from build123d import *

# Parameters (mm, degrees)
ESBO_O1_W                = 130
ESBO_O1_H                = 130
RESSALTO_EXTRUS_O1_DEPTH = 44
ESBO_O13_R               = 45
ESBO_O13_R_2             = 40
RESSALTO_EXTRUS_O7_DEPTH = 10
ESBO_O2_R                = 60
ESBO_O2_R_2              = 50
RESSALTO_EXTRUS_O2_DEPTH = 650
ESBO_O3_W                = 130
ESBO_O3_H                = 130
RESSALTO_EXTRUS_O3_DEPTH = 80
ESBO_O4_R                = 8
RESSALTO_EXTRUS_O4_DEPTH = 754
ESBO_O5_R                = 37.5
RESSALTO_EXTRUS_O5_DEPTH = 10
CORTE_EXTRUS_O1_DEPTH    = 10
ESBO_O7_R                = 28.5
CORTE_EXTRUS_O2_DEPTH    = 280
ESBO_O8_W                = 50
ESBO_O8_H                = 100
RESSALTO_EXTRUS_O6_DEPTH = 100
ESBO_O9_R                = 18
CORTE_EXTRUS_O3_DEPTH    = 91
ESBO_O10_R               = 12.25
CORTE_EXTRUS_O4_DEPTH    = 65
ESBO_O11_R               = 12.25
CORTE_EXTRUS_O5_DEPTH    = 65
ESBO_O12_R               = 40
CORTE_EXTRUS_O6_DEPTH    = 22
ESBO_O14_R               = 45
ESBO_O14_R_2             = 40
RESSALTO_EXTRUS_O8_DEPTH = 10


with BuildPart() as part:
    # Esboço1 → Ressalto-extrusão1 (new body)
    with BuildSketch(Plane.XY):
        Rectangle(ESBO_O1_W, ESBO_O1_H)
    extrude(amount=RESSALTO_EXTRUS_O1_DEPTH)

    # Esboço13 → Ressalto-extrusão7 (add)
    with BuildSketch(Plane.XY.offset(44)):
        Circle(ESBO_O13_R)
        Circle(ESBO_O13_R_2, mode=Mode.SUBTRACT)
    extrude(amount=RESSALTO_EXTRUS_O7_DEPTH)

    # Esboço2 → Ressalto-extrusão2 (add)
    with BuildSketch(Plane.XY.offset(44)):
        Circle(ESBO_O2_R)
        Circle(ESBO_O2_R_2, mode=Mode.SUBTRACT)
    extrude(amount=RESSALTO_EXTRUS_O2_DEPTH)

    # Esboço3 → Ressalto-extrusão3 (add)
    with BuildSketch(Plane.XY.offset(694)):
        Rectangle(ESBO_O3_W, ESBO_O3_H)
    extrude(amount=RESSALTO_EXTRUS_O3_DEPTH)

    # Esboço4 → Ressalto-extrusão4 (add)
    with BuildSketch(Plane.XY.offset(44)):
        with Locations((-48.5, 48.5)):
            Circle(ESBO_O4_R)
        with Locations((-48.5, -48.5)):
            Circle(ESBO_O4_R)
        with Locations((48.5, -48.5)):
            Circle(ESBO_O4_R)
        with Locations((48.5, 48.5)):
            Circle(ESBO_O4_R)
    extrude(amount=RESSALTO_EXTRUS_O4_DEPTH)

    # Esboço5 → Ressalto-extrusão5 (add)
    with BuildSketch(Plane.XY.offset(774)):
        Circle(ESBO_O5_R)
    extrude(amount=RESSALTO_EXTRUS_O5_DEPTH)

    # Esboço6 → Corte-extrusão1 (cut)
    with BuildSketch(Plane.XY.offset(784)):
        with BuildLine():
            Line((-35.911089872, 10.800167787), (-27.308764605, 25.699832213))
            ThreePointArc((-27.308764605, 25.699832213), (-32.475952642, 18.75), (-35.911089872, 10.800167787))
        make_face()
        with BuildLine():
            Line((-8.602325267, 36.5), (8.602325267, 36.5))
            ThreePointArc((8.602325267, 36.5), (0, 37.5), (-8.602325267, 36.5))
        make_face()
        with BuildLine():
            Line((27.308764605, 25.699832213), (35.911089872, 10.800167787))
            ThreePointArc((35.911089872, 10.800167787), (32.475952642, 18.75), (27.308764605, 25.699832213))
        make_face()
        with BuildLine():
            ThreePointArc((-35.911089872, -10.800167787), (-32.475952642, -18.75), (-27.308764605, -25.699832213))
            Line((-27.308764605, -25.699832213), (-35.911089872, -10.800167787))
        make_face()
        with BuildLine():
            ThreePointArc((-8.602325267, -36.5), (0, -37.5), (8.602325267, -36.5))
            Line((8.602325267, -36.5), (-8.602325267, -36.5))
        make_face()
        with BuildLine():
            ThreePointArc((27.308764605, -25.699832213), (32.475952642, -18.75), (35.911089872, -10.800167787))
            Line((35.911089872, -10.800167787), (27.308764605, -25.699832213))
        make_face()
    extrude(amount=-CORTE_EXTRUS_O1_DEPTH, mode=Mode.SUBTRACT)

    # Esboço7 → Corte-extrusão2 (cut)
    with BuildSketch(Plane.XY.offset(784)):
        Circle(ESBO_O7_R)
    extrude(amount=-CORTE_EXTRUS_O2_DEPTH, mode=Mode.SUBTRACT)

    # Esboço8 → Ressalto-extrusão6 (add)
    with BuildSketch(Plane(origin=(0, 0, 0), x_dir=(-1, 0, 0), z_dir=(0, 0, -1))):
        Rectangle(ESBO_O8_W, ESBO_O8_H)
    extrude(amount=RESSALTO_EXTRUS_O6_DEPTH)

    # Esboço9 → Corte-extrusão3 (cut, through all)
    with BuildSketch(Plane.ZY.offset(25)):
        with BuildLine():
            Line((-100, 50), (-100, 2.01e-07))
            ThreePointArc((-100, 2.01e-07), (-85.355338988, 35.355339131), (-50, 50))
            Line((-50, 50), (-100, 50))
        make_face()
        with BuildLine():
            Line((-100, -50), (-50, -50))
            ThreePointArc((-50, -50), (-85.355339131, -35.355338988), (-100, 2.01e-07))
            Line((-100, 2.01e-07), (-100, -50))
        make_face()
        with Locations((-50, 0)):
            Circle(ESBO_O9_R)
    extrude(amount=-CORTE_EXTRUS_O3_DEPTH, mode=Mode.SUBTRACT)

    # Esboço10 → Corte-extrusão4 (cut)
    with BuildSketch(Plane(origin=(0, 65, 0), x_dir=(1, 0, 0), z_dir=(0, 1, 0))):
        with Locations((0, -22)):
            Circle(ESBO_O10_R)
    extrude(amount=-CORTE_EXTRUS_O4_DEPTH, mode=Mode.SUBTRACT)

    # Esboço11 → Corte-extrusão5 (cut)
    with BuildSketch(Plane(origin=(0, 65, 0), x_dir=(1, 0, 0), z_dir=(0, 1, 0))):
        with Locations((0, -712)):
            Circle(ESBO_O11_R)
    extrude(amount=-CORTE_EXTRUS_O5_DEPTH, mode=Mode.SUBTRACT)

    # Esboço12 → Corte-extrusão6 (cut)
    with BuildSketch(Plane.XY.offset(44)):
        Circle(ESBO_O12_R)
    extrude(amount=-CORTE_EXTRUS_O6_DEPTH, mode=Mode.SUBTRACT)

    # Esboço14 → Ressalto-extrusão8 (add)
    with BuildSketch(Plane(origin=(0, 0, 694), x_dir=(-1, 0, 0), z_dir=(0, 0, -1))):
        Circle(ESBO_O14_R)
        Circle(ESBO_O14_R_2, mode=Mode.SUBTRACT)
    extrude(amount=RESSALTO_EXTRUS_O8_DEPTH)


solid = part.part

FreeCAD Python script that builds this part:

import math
import FreeCAD as App
import Part
import Sketcher
Q = App.Units.Quantity


def add_polygon(sketch, points):
    """Adds a closed chain of lines whose ends are joined by coincident constraints."""
    first, n = sketch.GeometryCount, len(points)
    for a, b in zip(points, points[1:] + points[:1]):
        sketch.addGeometry(Part.LineSegment(App.Vector(*a, 0), App.Vector(*b, 0)), False)
    for i in range(n):
        sketch.addConstraint(Sketcher.Constraint("Coincident", first + i, 2, first + (i + 1) % n, 1))

doc = App.newDocument("Part")
body = doc.addObject("PartDesign::Body", "Body")

sketch1 = body.newObject("Sketcher::SketchObject", "Sketch")
sketch1.AttachmentSupport = (doc.getObject("XY_Plane"), [""])
sketch1.MapMode = "FlatFace"
add_polygon(sketch1, [(-65, 65), (-65, -65), (65, -65), (65, 65)])
sketch1.addConstraint(Sketcher.Constraint("Vertical", 0))
sketch1.addConstraint(Sketcher.Constraint("Horizontal", 1))
sketch1.addConstraint(Sketcher.Constraint("Vertical", 2))
sketch1.addConstraint(Sketcher.Constraint("Horizontal", 3))
sketch1.addConstraint(Sketcher.Constraint("Symmetric", 0, 2, 2, 2, -1, 1))
sketch1.addConstraint(Sketcher.Constraint("Equal", 3, 0))
sketch1.addConstraint(Sketcher.Constraint("DistanceX", 1, 1, 1, 2, Q("130 mm")))
pad1 = body.newObject("PartDesign::Pad", "Pad")
pad1.Profile = sketch1
pad1.Length = 44

sketch2 = body.newObject("Sketcher::SketchObject", "Sketch001")
sketch2.AttachmentSupport = (doc.getObject("XY_Plane"), [""])
sketch2.MapMode = "FlatFace"
sketch2.AttachmentOffset = App.Placement(App.Vector(0, 0, 44), App.Rotation())
sketch2.addGeometry(Part.Circle(App.Vector(0, 0, 0), App.Vector(0, 0, 1), 45), False)
sketch2.addGeometry(Part.Circle(App.Vector(0, 0, 0), App.Vector(0, 0, 1), 40), False)
sketch2.addConstraint(Sketcher.Constraint("Coincident", 0, 3, -1, 1))
sketch2.addConstraint(Sketcher.Constraint("Coincident", 1, 3, -1, 1))
sketch2.addConstraint(Sketcher.Constraint("Diameter", 0, Q("90 mm")))
sketch2.addConstraint(Sketcher.Constraint("Diameter", 1, Q("80 mm")))
pad2 = body.newObject("PartDesign::Pad", "Pad001")
pad2.Profile = sketch2
pad2.Length = 10

sketch3 = body.newObject("Sketcher::SketchObject", "Sketch002")
sketch3.AttachmentSupport = (doc.getObject("XY_Plane"), [""])
sketch3.MapMode = "FlatFace"
sketch3.AttachmentOffset = App.Placement(App.Vector(0, 0, 44), App.Rotation())
sketch3.addGeometry(Part.Circle(App.Vector(0, 0, 0), App.Vector(0, 0, 1), 60), False)
sketch3.addGeometry(Part.Circle(App.Vector(0, 0, 0), App.Vector(0, 0, 1), 50), False)
sketch3.addConstraint(Sketcher.Constraint("Coincident", 0, 3, -1, 1))
sketch3.addConstraint(Sketcher.Constraint("Coincident", 1, 3, -1, 1))
sketch3.addConstraint(Sketcher.Constraint("Diameter", 0, Q("120 mm")))
sketch3.addConstraint(Sketcher.Constraint("Diameter", 1, Q("100 mm")))
pad3 = body.newObject("PartDesign::Pad", "Pad002")
pad3.Profile = sketch3
pad3.Length = 650

sketch4 = body.newObject("Sketcher::SketchObject", "Sketch003")
sketch4.AttachmentSupport = (doc.getObject("XY_Plane"), [""])
sketch4.MapMode = "FlatFace"
sketch4.AttachmentOffset = App.Placement(App.Vector(0, 0, 694), App.Rotation())
add_polygon(sketch4, [(-65, 65), (-65, -65), (65, -65), (65, 65)])
sketch4.addConstraint(Sketcher.Constraint("Vertical", 0))
sketch4.addConstraint(Sketcher.Constraint("Horizontal", 1))
sketch4.addConstraint(Sketcher.Constraint("Vertical", 2))
sketch4.addConstraint(Sketcher.Constraint("Horizontal", 3))
sketch4.addConstraint(Sketcher.Constraint("Symmetric", 0, 2, 2, 2, -1, 1))
sketch4.addConstraint(Sketcher.Constraint("Equal", 3, 0))
sketch4.addConstraint(Sketcher.Constraint("DistanceX", 1, 1, 1, 2, Q("130 mm")))
pad4 = body.newObject("PartDesign::Pad", "Pad003")
pad4.Profile = sketch4
pad4.Length = 80

sketch5 = body.newObject("Sketcher::SketchObject", "Sketch004")
sketch5.AttachmentSupport = (doc.getObject("XY_Plane"), [""])
sketch5.MapMode = "FlatFace"
sketch5.AttachmentOffset = App.Placement(App.Vector(0, 0, 44), App.Rotation())
sketch5.addGeometry(Part.Circle(App.Vector(-48.5, 48.5, 0), App.Vector(0, 0, 1), 8), False)
sketch5.addGeometry(Part.Circle(App.Vector(-48.5, -48.5, 0), App.Vector(0, 0, 1), 8), False)
sketch5.addGeometry(Part.Circle(App.Vector(48.5, -48.5, 0), App.Vector(0, 0, 1), 8), False)
sketch5.addGeometry(Part.Circle(App.Vector(48.5, 48.5, 0), App.Vector(0, 0, 1), 8), False)
sketch5.addConstraint(Sketcher.Constraint("Equal", 0, 1))
sketch5.addConstraint(Sketcher.Constraint("Equal", 1, 2))
sketch5.addConstraint(Sketcher.Constraint("Equal", 2, 3))
sketch5.addConstraint(Sketcher.Constraint("Symmetric", 0, 3, 2, 3, -1, 1))
sketch5.addConstraint(Sketcher.Constraint("Symmetric", 1, 3, 3, 3, -1, 1))
sketch5.addConstraint(Sketcher.Constraint("Symmetric", 1, 3, 2, 3, -2))
sketch5.addConstraint(Sketcher.Constraint("Diameter", 0, Q("16 mm")))
sketch5.addConstraint(Sketcher.Constraint("DistanceY", 1, 3, 0, 3, Q("97 mm")))
sketch5.addConstraint(Sketcher.Constraint("DistanceX", 1, 3, 2, 3, Q("97 mm")))
pad5 = body.newObject("PartDesign::Pad", "Pad004")
pad5.Profile = sketch5
pad5.Length = 754

sketch6 = body.newObject("Sketcher::SketchObject", "Sketch005")
sketch6.AttachmentSupport = (doc.getObject("XY_Plane"), [""])
sketch6.MapMode = "FlatFace"
sketch6.AttachmentOffset = App.Placement(App.Vector(0, 0, 774), App.Rotation())
sketch6.addGeometry(Part.Circle(App.Vector(0, 0, 0), App.Vector(0, 0, 1), 37.5), False)
sketch6.addConstraint(Sketcher.Constraint("Coincident", 0, 3, -1, 1))
sketch6.addConstraint(Sketcher.Constraint("Diameter", 0, Q("75 mm")))
pad6 = body.newObject("PartDesign::Pad", "Pad005")
pad6.Profile = sketch6
pad6.Length = 10

sketch7 = body.newObject("Sketcher::SketchObject", "Sketch006")
sketch7.AttachmentSupport = (doc.getObject("XY_Plane"), [""])
sketch7.MapMode = "FlatFace"
sketch7.AttachmentOffset = App.Placement(App.Vector(0, 0, 784), App.Rotation())
sketch7.addGeometry(Part.LineSegment(App.Vector(-35.91109, 10.800168, 0), App.Vector(-27.308765, 25.699832, 0)), False)
sketch7.addGeometry(Part.ArcOfCircle(Part.Circle(App.Vector(0, 0, 0), App.Vector(0, 0, 1), 37.5), math.radians(136.738524), math.radians(163.261476)), False)
sketch7.addGeometry(Part.LineSegment(App.Vector(-8.602325, 36.5, 0), App.Vector(8.602325, 36.5, 0)), False)
sketch7.addGeometry(Part.ArcOfCircle(Part.Circle(App.Vector(0, 0, 0), App.Vector(0, 0, 1), 37.5), math.radians(76.738524), math.radians(103.261476)), False)
sketch7.addGeometry(Part.LineSegment(App.Vector(27.308765, 25.699832, 0), App.Vector(35.91109, 10.800168, 0)), False)
sketch7.addGeometry(Part.ArcOfCircle(Part.Circle(App.Vector(0, 0, 0), App.Vector(0, 0, 1), 37.5), math.radians(16.738524), math.radians(43.261476)), False)
sketch7.addGeometry(Part.ArcOfCircle(Part.Circle(App.Vector(0, 0, 0), App.Vector(0, 0, 1), 37.5), math.radians(-163.261476), math.radians(-136.738524)), False)
sketch7.addGeometry(Part.LineSegment(App.Vector(-27.308765, -25.699832, 0), App.Vector(-35.91109, -10.800168, 0)), False)
sketch7.addGeometry(Part.ArcOfCircle(Part.Circle(App.Vector(0, 0, 0), App.Vector(0, 0, 1), 37.5), math.radians(-103.261476), math.radians(-76.738524)), False)
sketch7.addGeometry(Part.LineSegment(App.Vector(8.602325, -36.5, 0), App.Vector(-8.602325, -36.5, 0)), False)
sketch7.addGeometry(Part.ArcOfCircle(Part.Circle(App.Vector(0, 0, 0), App.Vector(0, 0, 1), 37.5), math.radians(-43.261476), math.radians(-16.738524)), False)
sketch7.addGeometry(Part.LineSegment(App.Vector(35.91109, -10.800168, 0), App.Vector(27.308765, -25.699832, 0)), False)
sketch7.addConstraint(Sketcher.Constraint("Coincident", 0, 1, 1, 2))
sketch7.addConstraint(Sketcher.Constraint("Coincident", 1, 1, 0, 2))
sketch7.addConstraint(Sketcher.Constraint("Coincident", 2, 1, 3, 2))
sketch7.addConstraint(Sketcher.Constraint("Coincident", 3, 1, 2, 2))
sketch7.addConstraint(Sketcher.Constraint("Coincident", 4, 1, 5, 2))
sketch7.addConstraint(Sketcher.Constraint("Coincident", 5, 1, 4, 2))
sketch7.addConstraint(Sketcher.Constraint("Coincident", 6, 1, 7, 2))
sketch7.addConstraint(Sketcher.Constraint("Coincident", 7, 1, 6, 2))
sketch7.addConstraint(Sketcher.Constraint("Coincident", 8, 1, 9, 2))
sketch7.addConstraint(Sketcher.Constraint("Coincident", 9, 1, 8, 2))
sketch7.addConstraint(Sketcher.Constraint("Coincident", 10, 1, 11, 2))
sketch7.addConstraint(Sketcher.Constraint("Coincident", 11, 1, 10, 2))
sketch7.addConstraint(Sketcher.Constraint("Horizontal", 2))
sketch7.addConstraint(Sketcher.Constraint("Horizontal", 9))
sketch7.addConstraint(Sketcher.Constraint("Coincident", 1, 3, -1, 1))
sketch7.addConstraint(Sketcher.Constraint("Coincident", 3, 3, -1, 1))
sketch7.addConstraint(Sketcher.Constraint("Coincident", 5, 3, -1, 1))
sketch7.addConstraint(Sketcher.Constraint("Coincident", 6, 3, -1, 1))
sketch7.addConstraint(Sketcher.Constraint("Coincident", 8, 3, -1, 1))
sketch7.addConstraint(Sketcher.Constraint("Coincident", 10, 3, -1, 1))
sketch7.addConstraint(Sketcher.Constraint("Equal", 1, 3))
sketch7.addConstraint(Sketcher.Constraint("Equal", 3, 5))
sketch7.addConstraint(Sketcher.Constraint("Equal", 5, 6))
sketch7.addConstraint(Sketcher.Constraint("Equal", 6, 8))
sketch7.addConstraint(Sketcher.Constraint("Equal", 8, 10))
sketch7.addConstraint(Sketcher.Constraint("Parallel", 4, 7))
sketch7.addConstraint(Sketcher.Constraint("Parallel", 0, 11))
sketch7.addConstraint(Sketcher.Constraint("Horizontal", 1, 1, 4, 1))
sketch7.addConstraint(Sketcher.Constraint("Horizontal", 0, 1, 5, 1))
sketch7.addConstraint(Sketcher.Constraint("Horizontal", 7, 1, 10, 1))
sketch7.addConstraint(Sketcher.Constraint("Vertical", 0, 1, 6, 1))
sketch7.addConstraint(Sketcher.Constraint("Vertical", 2, 1, 8, 1))
sketch7.addConstraint(Sketcher.Constraint("Radius", 1, Q("37.5 mm")))
sketch7.addConstraint(Sketcher.Constraint("Angle", 0, Q("60 deg")))
sketch7.addConstraint(Sketcher.Constraint("DistanceY", -1, 1, 2, 1, Q("36.5 mm")))
sketch7.addConstraint(Sketcher.Constraint("DistanceY", 7, 1, 0, 1, Q("36.5 mm")))
pocket1 = body.newObject("PartDesign::Pocket", "Pocket")
pocket1.Profile = sketch7
pocket1.Length = 10

sketch8 = body.newObject("Sketcher::SketchObject", "Sketch007")
sketch8.AttachmentSupport = (doc.getObject("XY_Plane"), [""])
sketch8.MapMode = "FlatFace"
sketch8.AttachmentOffset = App.Placement(App.Vector(0, 0, 784), App.Rotation())
sketch8.addGeometry(Part.Circle(App.Vector(0, 0, 0), App.Vector(0, 0, 1), 28.5), False)
sketch8.addConstraint(Sketcher.Constraint("Coincident", 0, 3, -1, 1))
sketch8.addConstraint(Sketcher.Constraint("Diameter", 0, Q("57 mm")))
pocket2 = body.newObject("PartDesign::Pocket", "Pocket001")
pocket2.Profile = sketch8
pocket2.Length = 280

sketch9 = body.newObject("Sketcher::SketchObject", "Sketch008")
sketch9.AttachmentSupport = (doc.getObject("XY_Plane"), [""])
sketch9.MapMode = "FlatFace"
add_polygon(sketch9, [(25, 50), (25, -50), (-25, -50), (-25, 50)])
sketch9.addConstraint(Sketcher.Constraint("Vertical", 0))
sketch9.addConstraint(Sketcher.Constraint("Horizontal", 1))
sketch9.addConstraint(Sketcher.Constraint("Vertical", 2))
sketch9.addConstraint(Sketcher.Constraint("Horizontal", 3))
sketch9.addConstraint(Sketcher.Constraint("Symmetric", 0, 2, 2, 2, -1, 1))
sketch9.addConstraint(Sketcher.Constraint("DistanceX", 1, 2, 1, 1, Q("50 mm")))
sketch9.addConstraint(Sketcher.Constraint("DistanceY", 0, 2, 0, 1, Q("100 mm")))
pad7 = body.newObject("PartDesign::Pad", "Pad006")
pad7.Profile = sketch9
pad7.Length = 100
pad7.Reversed = True

sketch10 = body.newObject("Sketcher::SketchObject", "Sketch009")
sketch10.AttachmentSupport = (doc.getObject("YZ_Plane"), [""])
sketch10.MapMode = "FlatFace"
sketch10.AttachmentOffset = App.Placement(App.Vector(0, 0, -25), App.Rotation())
sketch10.addGeometry(Part.LineSegment(App.Vector(50, -100, 0), App.Vector(0, -100, 0)), False)
sketch10.addGeometry(Part.ArcOfCircle(Part.Circle(App.Vector(0, -50, 0), App.Vector(0, 0, 1), 50), math.radians(-90), math.radians(0)), False)
sketch10.addGeometry(Part.LineSegment(App.Vector(50, -50, 0), App.Vector(50, -100, 0)), False)
sketch10.addGeometry(Part.LineSegment(App.Vector(-50, -100, 0), App.Vector(-50, -50, 0)), False)
sketch10.addGeometry(Part.ArcOfCircle(Part.Circle(App.Vector(0, -50, 0), App.Vector(0, 0, 1), 50), math.radians(180), math.radians(270)), False)
sketch10.addGeometry(Part.LineSegment(App.Vector(0, -100, 0), App.Vector(-50, -100, 0)), False)
sketch10.addGeometry(Part.Circle(App.Vector(0, -50, 0), App.Vector(0, 0, 1), 18), False)
sketch10.addConstraint(Sketcher.Constraint("Tangent", 0, 2, 1, 1))
sketch10.addConstraint(Sketcher.Constraint("Tangent", 1, 2, 2, 1))
sketch10.addConstraint(Sketcher.Constraint("Coincident", 2, 2, 0, 1))
sketch10.addConstraint(Sketcher.Constraint("Tangent", 3, 2, 4, 1))
sketch10.addConstraint(Sketcher.Constraint("Tangent", 4, 2, 5, 1))
sketch10.addConstraint(Sketcher.Constraint("Coincident", 5, 2, 3, 1))
sketch10.addConstraint(Sketcher.Constraint("Horizontal", 0))
sketch10.addConstraint(Sketcher.Constraint("Vertical", 2))
sketch10.addConstraint(Sketcher.Constraint("Vertical", 3))
sketch10.addConstraint(Sketcher.Constraint("Horizontal", 5))
sketch10.addConstraint(Sketcher.Constraint("Coincident", 4, 3, 1, 3))
sketch10.addConstraint(Sketcher.Constraint("Coincident", 6, 3, 1, 3))
sketch10.addConstraint(Sketcher.Constraint("Equal", 1, 4))
sketch10.addConstraint(Sketcher.Constraint("PointOnObject", 1, 3, -2))
sketch10.addConstraint(Sketcher.Constraint("Diameter", 6, Q("36 mm")))
sketch10.addConstraint(Sketcher.Constraint("Radius", 1, Q("50 mm")))
sketch10.addConstraint(Sketcher.Constraint("DistanceY", 1, 3, -1, 1, Q("50 mm")))
pocket3 = body.newObject("PartDesign::Pocket", "Pocket002")
pocket3.Profile = sketch10
pocket3.Type = "ThroughAll"
pocket3.Reversed = True

sketch11 = body.newObject("Sketcher::SketchObject", "Sketch010")
sketch11.AttachmentSupport = (doc.getObject("XZ_Plane"), [""])
sketch11.MapMode = "FlatFace"
sketch11.AttachmentOffset = App.Placement(App.Vector(0, 0, -65), App.Rotation())
sketch11.addGeometry(Part.Circle(App.Vector(0, 22, 0), App.Vector(0, 0, 1), 12.25), False)
sketch11.addConstraint(Sketcher.Constraint("PointOnObject", 0, 3, -2))
sketch11.addConstraint(Sketcher.Constraint("Diameter", 0, Q("24.5 mm")))
sketch11.addConstraint(Sketcher.Constraint("DistanceY", -1, 1, 0, 3, Q("22 mm")))
pocket4 = body.newObject("PartDesign::Pocket", "Pocket003")
pocket4.Profile = sketch11
pocket4.Length = 65
pocket4.Reversed = True

sketch12 = body.newObject("Sketcher::SketchObject", "Sketch011")
sketch12.AttachmentSupport = (doc.getObject("XZ_Plane"), [""])
sketch12.MapMode = "FlatFace"
sketch12.AttachmentOffset = App.Placement(App.Vector(0, 0, -65), App.Rotation())
sketch12.addGeometry(Part.Circle(App.Vector(0, 712, 0), App.Vector(0, 0, 1), 12.25), False)
sketch12.addConstraint(Sketcher.Constraint("PointOnObject", 0, 3, -2))
sketch12.addConstraint(Sketcher.Constraint("Diameter", 0, Q("24.5 mm")))
sketch12.addConstraint(Sketcher.Constraint("DistanceY", -1, 1, 0, 3, Q("712 mm")))
pocket5 = body.newObject("PartDesign::Pocket", "Pocket004")
pocket5.Profile = sketch12
pocket5.Length = 65
pocket5.Reversed = True

sketch13 = body.newObject("Sketcher::SketchObject", "Sketch012")
sketch13.AttachmentSupport = (doc.getObject("XY_Plane"), [""])
sketch13.MapMode = "FlatFace"
sketch13.AttachmentOffset = App.Placement(App.Vector(0, 0, 44), App.Rotation())
sketch13.addGeometry(Part.Circle(App.Vector(0, 0, 0), App.Vector(0, 0, 1), 40), False)
sketch13.addConstraint(Sketcher.Constraint("Coincident", 0, 3, -1, 1))
sketch13.addConstraint(Sketcher.Constraint("Diameter", 0, Q("80 mm")))
pocket6 = body.newObject("PartDesign::Pocket", "Pocket005")
pocket6.Profile = sketch13
pocket6.Length = 22

sketch14 = body.newObject("Sketcher::SketchObject", "Sketch013")
sketch14.AttachmentSupport = (doc.getObject("XY_Plane"), [""])
sketch14.MapMode = "FlatFace"
sketch14.AttachmentOffset = App.Placement(App.Vector(0, 0, 694), App.Rotation())
sketch14.addGeometry(Part.Circle(App.Vector(0, 0, 0), App.Vector(0, 0, 1), 45), False)
sketch14.addGeometry(Part.Circle(App.Vector(0, 0, 0), App.Vector(0, 0, 1), 40), False)
sketch14.addConstraint(Sketcher.Constraint("Coincident", 0, 3, -1, 1))
sketch14.addConstraint(Sketcher.Constraint("Coincident", 1, 3, -1, 1))
sketch14.addConstraint(Sketcher.Constraint("Diameter", 0, Q("90 mm")))
sketch14.addConstraint(Sketcher.Constraint("Diameter", 1, Q("80 mm")))
pad8 = body.newObject("PartDesign::Pad", "Pad007")
pad8.Profile = sketch14
pad8.Length = 10
pad8.Reversed = True

doc.recompute()
